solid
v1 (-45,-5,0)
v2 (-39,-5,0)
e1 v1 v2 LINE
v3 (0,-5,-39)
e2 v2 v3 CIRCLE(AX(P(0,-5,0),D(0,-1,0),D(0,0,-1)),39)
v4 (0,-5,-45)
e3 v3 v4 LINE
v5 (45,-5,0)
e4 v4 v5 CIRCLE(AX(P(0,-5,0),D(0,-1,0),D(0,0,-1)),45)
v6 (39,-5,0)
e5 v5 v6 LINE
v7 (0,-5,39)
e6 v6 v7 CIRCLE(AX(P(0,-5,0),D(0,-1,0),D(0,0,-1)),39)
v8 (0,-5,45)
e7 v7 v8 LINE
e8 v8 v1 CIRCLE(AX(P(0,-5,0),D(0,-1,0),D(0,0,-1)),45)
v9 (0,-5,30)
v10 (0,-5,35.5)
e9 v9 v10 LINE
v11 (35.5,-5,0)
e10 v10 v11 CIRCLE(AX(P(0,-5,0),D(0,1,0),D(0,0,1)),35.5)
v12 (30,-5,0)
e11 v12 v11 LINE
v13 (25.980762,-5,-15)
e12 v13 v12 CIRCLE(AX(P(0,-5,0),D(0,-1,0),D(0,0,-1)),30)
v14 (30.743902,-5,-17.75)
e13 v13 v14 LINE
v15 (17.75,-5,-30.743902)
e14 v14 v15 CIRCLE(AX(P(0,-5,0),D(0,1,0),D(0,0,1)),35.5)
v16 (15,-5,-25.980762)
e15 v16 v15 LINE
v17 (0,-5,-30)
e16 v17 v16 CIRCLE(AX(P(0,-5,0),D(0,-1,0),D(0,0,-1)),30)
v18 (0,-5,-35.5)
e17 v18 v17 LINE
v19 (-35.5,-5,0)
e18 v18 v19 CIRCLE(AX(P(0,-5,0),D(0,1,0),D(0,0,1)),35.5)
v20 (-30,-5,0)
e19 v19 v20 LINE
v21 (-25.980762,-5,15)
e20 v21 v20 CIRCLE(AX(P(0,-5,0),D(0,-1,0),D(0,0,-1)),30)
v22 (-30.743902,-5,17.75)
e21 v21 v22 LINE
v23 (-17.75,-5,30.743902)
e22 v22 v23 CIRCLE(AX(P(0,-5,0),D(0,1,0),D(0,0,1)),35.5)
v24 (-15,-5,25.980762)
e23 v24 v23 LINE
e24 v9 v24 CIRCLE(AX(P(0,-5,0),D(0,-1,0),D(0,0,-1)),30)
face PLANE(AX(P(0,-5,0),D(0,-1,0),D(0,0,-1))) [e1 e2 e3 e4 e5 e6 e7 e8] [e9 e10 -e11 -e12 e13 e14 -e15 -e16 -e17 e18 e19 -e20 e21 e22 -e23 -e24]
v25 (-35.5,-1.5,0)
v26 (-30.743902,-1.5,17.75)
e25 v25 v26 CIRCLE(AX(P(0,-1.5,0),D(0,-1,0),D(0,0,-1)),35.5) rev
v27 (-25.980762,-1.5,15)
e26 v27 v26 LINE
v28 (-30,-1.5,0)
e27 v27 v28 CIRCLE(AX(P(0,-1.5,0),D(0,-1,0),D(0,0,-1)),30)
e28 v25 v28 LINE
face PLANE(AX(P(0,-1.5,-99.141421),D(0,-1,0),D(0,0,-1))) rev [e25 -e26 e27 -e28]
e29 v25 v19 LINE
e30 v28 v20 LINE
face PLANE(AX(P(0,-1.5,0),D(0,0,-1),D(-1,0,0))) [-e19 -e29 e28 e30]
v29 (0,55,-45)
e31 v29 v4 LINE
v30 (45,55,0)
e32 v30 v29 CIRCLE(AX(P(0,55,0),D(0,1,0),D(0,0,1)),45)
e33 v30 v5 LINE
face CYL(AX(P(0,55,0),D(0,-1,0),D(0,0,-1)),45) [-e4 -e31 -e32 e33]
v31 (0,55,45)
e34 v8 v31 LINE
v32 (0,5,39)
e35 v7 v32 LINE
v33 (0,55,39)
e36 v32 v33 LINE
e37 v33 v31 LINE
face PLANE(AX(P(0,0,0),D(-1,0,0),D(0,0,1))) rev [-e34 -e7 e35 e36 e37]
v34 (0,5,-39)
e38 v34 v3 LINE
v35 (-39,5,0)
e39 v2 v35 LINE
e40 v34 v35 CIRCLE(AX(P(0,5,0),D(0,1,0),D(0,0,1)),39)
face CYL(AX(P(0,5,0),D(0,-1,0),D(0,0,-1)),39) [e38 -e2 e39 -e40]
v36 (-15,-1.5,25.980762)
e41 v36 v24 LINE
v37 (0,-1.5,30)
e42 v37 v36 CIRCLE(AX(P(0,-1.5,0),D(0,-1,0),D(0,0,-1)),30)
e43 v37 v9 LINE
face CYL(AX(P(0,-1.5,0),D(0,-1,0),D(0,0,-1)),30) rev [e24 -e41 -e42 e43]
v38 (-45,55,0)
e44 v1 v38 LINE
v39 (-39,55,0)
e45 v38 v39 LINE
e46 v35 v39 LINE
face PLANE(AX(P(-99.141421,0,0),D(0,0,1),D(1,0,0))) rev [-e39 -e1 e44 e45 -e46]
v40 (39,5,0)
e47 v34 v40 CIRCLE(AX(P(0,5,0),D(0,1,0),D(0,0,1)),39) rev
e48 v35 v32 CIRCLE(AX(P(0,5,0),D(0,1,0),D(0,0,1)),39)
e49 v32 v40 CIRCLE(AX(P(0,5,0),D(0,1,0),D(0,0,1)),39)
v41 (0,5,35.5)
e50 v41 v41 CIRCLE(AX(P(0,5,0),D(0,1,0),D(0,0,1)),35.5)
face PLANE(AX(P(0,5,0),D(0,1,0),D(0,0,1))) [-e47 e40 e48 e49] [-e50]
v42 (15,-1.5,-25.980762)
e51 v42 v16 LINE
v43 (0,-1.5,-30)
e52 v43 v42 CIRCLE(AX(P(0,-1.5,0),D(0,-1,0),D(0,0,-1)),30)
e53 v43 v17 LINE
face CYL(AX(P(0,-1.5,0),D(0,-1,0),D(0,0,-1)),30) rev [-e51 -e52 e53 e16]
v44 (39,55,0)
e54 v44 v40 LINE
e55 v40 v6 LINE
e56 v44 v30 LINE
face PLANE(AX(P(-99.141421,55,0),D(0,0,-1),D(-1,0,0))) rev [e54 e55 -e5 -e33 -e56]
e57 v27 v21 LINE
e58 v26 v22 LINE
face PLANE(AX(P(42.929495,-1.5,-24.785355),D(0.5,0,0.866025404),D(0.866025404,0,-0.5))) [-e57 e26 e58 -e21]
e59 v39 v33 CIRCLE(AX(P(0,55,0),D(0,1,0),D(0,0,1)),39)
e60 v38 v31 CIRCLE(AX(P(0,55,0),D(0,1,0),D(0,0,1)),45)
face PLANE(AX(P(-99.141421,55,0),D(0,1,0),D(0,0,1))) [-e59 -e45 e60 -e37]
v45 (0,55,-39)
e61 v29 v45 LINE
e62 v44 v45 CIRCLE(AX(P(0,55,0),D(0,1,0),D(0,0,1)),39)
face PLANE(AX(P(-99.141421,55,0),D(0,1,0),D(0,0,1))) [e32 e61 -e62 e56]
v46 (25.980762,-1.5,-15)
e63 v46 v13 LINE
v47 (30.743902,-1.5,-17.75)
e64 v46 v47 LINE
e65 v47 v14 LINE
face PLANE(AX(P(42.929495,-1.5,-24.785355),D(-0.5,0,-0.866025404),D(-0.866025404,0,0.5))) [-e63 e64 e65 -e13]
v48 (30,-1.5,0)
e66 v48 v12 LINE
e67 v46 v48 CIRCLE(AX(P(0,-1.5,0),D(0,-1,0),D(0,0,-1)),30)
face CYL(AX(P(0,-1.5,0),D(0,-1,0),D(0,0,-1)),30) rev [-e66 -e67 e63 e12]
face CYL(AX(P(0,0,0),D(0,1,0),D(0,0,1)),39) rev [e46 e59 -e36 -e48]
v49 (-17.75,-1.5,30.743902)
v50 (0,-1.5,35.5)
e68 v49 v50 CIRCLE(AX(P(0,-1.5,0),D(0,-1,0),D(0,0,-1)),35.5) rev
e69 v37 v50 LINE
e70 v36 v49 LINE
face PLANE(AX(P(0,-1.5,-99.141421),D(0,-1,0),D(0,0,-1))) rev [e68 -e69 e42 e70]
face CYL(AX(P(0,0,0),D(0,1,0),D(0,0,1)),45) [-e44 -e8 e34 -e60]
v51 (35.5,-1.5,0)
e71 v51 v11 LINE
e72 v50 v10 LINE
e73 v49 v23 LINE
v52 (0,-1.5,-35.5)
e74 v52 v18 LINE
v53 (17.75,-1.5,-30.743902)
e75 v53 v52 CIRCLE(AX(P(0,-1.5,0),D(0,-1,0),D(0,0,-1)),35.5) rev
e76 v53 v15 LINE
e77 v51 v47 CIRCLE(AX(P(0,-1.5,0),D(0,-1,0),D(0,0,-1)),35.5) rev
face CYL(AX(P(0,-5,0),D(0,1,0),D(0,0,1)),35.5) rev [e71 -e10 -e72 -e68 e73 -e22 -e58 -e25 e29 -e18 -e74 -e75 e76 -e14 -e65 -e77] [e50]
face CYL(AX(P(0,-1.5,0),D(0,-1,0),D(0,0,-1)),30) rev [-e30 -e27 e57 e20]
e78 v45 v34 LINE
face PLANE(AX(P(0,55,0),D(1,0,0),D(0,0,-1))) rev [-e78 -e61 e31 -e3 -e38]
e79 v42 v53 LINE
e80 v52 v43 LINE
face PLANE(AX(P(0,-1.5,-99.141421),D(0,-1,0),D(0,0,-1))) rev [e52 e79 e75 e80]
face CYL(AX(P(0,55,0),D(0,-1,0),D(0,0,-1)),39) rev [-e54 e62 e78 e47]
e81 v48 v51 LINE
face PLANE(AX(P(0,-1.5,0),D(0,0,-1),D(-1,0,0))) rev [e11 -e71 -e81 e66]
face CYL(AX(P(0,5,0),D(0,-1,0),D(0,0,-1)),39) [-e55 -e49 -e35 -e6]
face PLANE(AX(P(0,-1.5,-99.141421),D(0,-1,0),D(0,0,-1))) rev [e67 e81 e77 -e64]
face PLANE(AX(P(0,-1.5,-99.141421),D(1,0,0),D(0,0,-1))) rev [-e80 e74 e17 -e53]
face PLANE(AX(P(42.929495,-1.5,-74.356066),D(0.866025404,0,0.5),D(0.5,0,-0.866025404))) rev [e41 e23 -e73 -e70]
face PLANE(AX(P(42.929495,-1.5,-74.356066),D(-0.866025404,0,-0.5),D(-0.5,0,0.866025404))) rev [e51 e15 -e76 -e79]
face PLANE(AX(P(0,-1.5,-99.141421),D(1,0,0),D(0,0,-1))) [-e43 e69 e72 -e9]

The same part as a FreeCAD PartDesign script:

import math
import FreeCAD as App
import Part
import Sketcher
Q = App.Units.Quantity

doc = App.newDocument("Part")
body = doc.addObject("PartDesign::Body", "Body")

# Sketch on XZ plane
sketch1 = doc.addObject("Sketcher::SketchObject", "Sketch")
body.addObject(sketch1)
sketch1.AttachmentSupport = (doc.XZ_Plane, [""])
sketch1.MapMode = "FlatFace"
sketch1.addGeometry(Part.Circle(App.Vector(0, 0, 0), App.Vector(0, 0, 1), 39), False)
sketch1.addConstraint([
    Sketcher.Constraint("Coincident", 0, 3, -1, 1),
    Sketcher.Constraint("Diameter", 0, Q("78 mm")),
])
pad1 = doc.addObject("PartDesign::Pad", "Pad")
body.addObject(pad1)
pad1.Profile = sketch1
pad1.Length = 5
pad1.Reversed = True

# Sketch on XZ plane
sketch2 = doc.addObject("Sketcher::SketchObject", "Sketch001")
body.addObject(sketch2)
sketch2.AttachmentSupport = (doc.XZ_Plane, [""])
sketch2.MapMode = "FlatFace"
sketch2.AttachmentOffset = App.Placement(App.Vector(0, 0, -5), App.Rotation())
sketch2.addGeometry([
    Part.LineSegment(App.Vector(-39, 0, 0), App.Vector(-45, 0, 0)),  # 0
    Part.ArcOfCircle(Part.Circle(App.Vector(0, 0, 0), App.Vector(0, 0, 1), 45), math.radians(90), math.radians(180)),  # 1
    Part.LineSegment(App.Vector(0, 45, 0), App.Vector(0, 39, 0)),  # 2
    Part.ArcOfCircle(Part.Circle(App.Vector(0, 0, 0), App.Vector(0, 0, 1), 39), math.radians(90), math.radians(180)),  # 3
    Part.LineSegment(App.Vector(0, -45, 0), App.Vector(0, -39, 0)),  # 4
    Part.ArcOfCircle(Part.Circle(App.Vector(0, 0, 0), App.Vector(0, 0, 1), 39), math.radians(-90), math.radians(0)),  # 5
    Part.LineSegment(App.Vector(39, 0, 0), App.Vector(45, 0, 0)),  # 6
    Part.ArcOfCircle(Part.Circle(App.Vector(0, 0, 0), App.Vector(0, 0, 1), 45), math.radians(-90), math.radians(0)),  # 7
], False)
sketch2.addConstraint([
    Sketcher.Constraint("Coincident", 0, 2, 1, 2),
    Sketcher.Constraint("Coincident", 1, 1, 2, 1),
    Sketcher.Constraint("Coincident", 2, 2, 3, 1),
    Sketcher.Constraint("Coincident", 3, 2, 0, 1),
    Sketcher.Constraint("Coincident", 4, 2, 5, 1),
    Sketcher.Constraint("Coincident", 5, 2, 6, 1),
    Sketcher.Constraint("Coincident", 6, 2, 7, 2),
    Sketcher.Constraint("Coincident", 7, 1, 4, 1),
    Sketcher.Constraint("Horizontal", 0),
    Sketcher.Constraint("Vertical", 2),
    Sketcher.Constraint("Vertical", 4),
    Sketcher.Constraint("Horizontal", 6),
    Sketcher.Constraint("Coincident", 1, 3, -1, 1),
    Sketcher.Constraint("Coincident", 3, 3, -1, 1),
    Sketcher.Constraint("Coincident", 5, 3, -1, 1),
    Sketcher.Constraint("Coincident", 7, 3, -1, 1),
    Sketcher.Constraint("Equal", 3, 5),
    Sketcher.Constraint("Equal", 1, 7),
    Sketcher.Constraint("PointOnObject", 0, 2, -1),
    Sketcher.Constraint("PointOnObject", 1, 1, -2),
    Sketcher.Constraint("PointOnObject", 4, 2, -2),
    Sketcher.Constraint("PointOnObject", 5, 2, -1),
    Sketcher.Constraint("Radius", 1, Q("45 mm")),
    Sketcher.Constraint("Radius", 3, Q("39 mm")),
])
pad2 = doc.addObject("PartDesign::Pad", "Pad001")
body.addObject(pad2)
pad2.Profile = sketch2
pad2.Type = "TwoLengths"
pad2.Length = 50
pad2.Length2 = 5
pad2.Reversed = True

# Sketch on XZ plane
sketch3 = doc.addObject("Sketcher::SketchObject", "Sketch002")
body.addObject(sketch3)
sketch3.AttachmentSupport = (doc.XZ_Plane, [""])
sketch3.MapMode = "FlatFace"
sketch3.AttachmentOffset = App.Placement(App.Vector(0, 0, 5), App.Rotation())
sketch3.addGeometry([
    Part.LineSegment(App.Vector(0, 39, 0), App.Vector(0, 45, 0)),  # 0
    Part.ArcOfCircle(Part.Circle(App.Vector(0, 0, 0), App.Vector(0, 0, 1), 45), math.radians(90), math.radians(180)),  # 1
    Part.LineSegment(App.Vector(-45, 0, 0), App.Vector(-39, 0, 0)),  # 2
    Part.ArcOfCircle(Part.Circle(App.Vector(0, 0, 0), App.Vector(0, 0, 1), 39), math.radians(-180), math.radians(-90)),  # 3
    Part.LineSegment(App.Vector(0, -39, 0), App.Vector(0, -45, 0)),  # 4
    Part.ArcOfCircle(Part.Circle(App.Vector(0, 0, 0), App.Vector(0, 0, 1), 45), math.radians(-90), math.radians(0)),  # 5
    Part.LineSegment(App.Vector(45, 0, 0), App.Vector(39, 0, 0)),  # 6
    Part.ArcOfCircle(Part.Circle(App.Vector(0, 0, 0), App.Vector(0, 0, 1), 39), math.radians(0), math.radians(90)),  # 7
], False)
sketch3.addConstraint([
    Sketcher.Constraint("Coincident", 0, 2, 1, 1),
    Sketcher.Constraint("Coincident", 1, 2, 2, 1),
    Sketcher.Constraint("Coincident", 2, 2, 3, 1),
    Sketcher.Constraint("Coincident", 3, 2, 4, 1),
    Sketcher.Constraint("Coincident", 4, 2, 5, 1),
    Sketcher.Constraint("Coincident", 5, 2, 6, 1),
    Sketcher.Constraint("Coincident", 6, 2, 7, 1),
    Sketcher.Constraint("Coincident", 7, 2, 0, 1),
    Sketcher.Constraint("Vertical", 0),
    Sketcher.Constraint("Horizontal", 2),
    Sketcher.Constraint("Vertical", 4),
    Sketcher.Constraint("Horizontal", 6),
    Sketcher.Constraint("Coincident", 1, 3, -1, 1),
    Sketcher.Constraint("Coincident", 3, 3, -1, 1),
    Sketcher.Constraint("Coincident", 5, 3, -1, 1),
    Sketcher.Constraint("Coincident", 7, 3, -1, 1),
    Sketcher.Constraint("Equal", 1, 5),
    Sketcher.Constraint("Equal", 3, 7),
    Sketcher.Constraint("PointOnObject", 0, 2, -2),
    Sketcher.Constraint("PointOnObject", 1, 2, -1),
    Sketcher.Constraint("PointOnObject", 3, 2, -2),
    Sketcher.Constraint("PointOnObject", 5, 2, -1),
    Sketcher.Constraint("Radius", 1, Q("45 mm")),
    Sketcher.Constraint("Radius", 3, Q("39 mm")),
])
pad3 = doc.addObject("PartDesign::Pad", "Pad002")
body.addObject(pad3)
pad3.Profile = sketch3
pad3.Length = 5
pad3.Reversed = True

# Sketch on XZ plane
sketch4 = doc.addObject("Sketcher::SketchObject", "Sketch003")
body.addObject(sketch4)
sketch4.AttachmentSupport = (doc.XZ_Plane, [""])
sketch4.MapMode = "FlatFace"
sketch4.AttachmentOffset = App.Placement(App.Vector(0, 0, -5), App.Rotation())
sketch4.addGeometry(Part.Circle(App.Vector(0, 0, 0), App.Vector(0, 0, 1), 36), False)
sketch4.addConstraint([
    Sketcher.Constraint("Coincident", 0, 3, -1, 1),
    Sketcher.Constraint("Diameter", 0, Q("71 mm")),
])
pocket1 = doc.addObject("PartDesign::Pocket", "Pocket")
body.addObject(pocket1)
pocket1.Profile = sketch4
pocket1.Length = 10
pocket1.Reversed = True

# Sketch on XZ plane
sketch5 = doc.addObject("Sketcher::SketchObject", "Sketch004")
body.addObject(sketch5)
sketch5.AttachmentSupport = (doc.XZ_Plane, [""])
sketch5.MapMode = "FlatFace"
sketch5.AttachmentOffset = App.Placement(App.Vector(0, 0, 1.5), App.Rotation())
sketch5.addGeometry([
    Part.ArcOfCircle(Part.Circle(App.Vector(0, 0, 0), App.Vector(0, 0, 1), 36), math.radians(90), math.radians(120)),  # 0
    Part.LineSegment(App.Vector(-18, 31, 0), App.Vector(-15, 26, 0)),  # 1
    Part.ArcOfCircle(Part.Circle(App.Vector(0, 0, 0), App.Vector(0, 0, 1), 30), math.radians(90), math.radians(120)),  # 2
    Part.LineSegment(App.Vector(0, 30, 0), App.Vector(0, 36, 0)),  # 3
    Part.ArcOfCircle(Part.Circle(App.Vector(0, 0, 0), App.Vector(0, 0, 1), 36), math.radians(150), math.radians(180)),  # 4
    Part.LineSegment(App.Vector(-36, 0, 0), App.Vector(-30, 0, 0)),  # 5
    Part.ArcOfCircle(Part.Circle(App.Vector(0, 0, 0), App.Vector(0, 0, 1), 30), math.radians(150), math.radians(180)),  # 6
    Part.LineSegment(App.Vector(-26, 15, 0), App.Vector(-31, 18, 0)),  # 7
    Part.LineSegment(App.Vector(0, -30, 0), App.Vector(0, -36, 0)),  # 8
    Part.ArcOfCircle(Part.Circle(App.Vector(0, 0, 0), App.Vector(0, 0, 1), 36), math.radians(-90), math.radians(-60)),  # 9
    Part.LineSegment(App.Vector(18, -31, 0), App.Vector(15, -26, 0)),  # 10
    Part.ArcOfCircle(Part.Circle(App.Vector(0, 0, 0), App.Vector(0, 0, 1), 30), math.radians(-90), math.radians(-60)),  # 11
    Part.LineSegment(App.Vector(26, -15, 0), App.Vector(31, -18, 0)),  # 12
    Part.ArcOfCircle(Part.Circle(App.Vector(0, 0, 0), App.Vector(0, 0, 1), 36), math.radians(-30), math.radians(0)),  # 13
    Part.LineSegment(App.Vector(36, 0, 0), App.Vector(30, 0, 0)),  # 14
    Part.ArcOfCircle(Part.Circle(App.Vector(0, 0, 0), App.Vector(0, 0, 1), 30), math.radians(-30), math.radians(0)),  # 15
], False)
sketch5.addConstraint([
    Sketcher.Constraint("Coincident", 0, 2, 1, 1),
    Sketcher.Constraint("Coincident", 1, 2, 2, 2),
    Sketcher.Constraint("Coincident", 2, 1, 3, 1),
    Sketcher.Constraint("Coincident", 3, 2, 0, 1),
    Sketcher.Constraint("Coincident", 4, 2, 5, 1),
    Sketcher.Constraint("Coincident", 5, 2, 6, 2),
    Sketcher.Constraint("Coincident", 6, 1, 7, 1),
    Sketcher.Constraint("Coincident", 7, 2, 4, 1),
    Sketcher.Constraint("Coincident", 8, 2, 9, 1),
    Sketcher.Constraint("Coincident", 9, 2, 10, 1),
    Sketcher.Constraint("Coincident", 10, 2, 11, 2),
    Sketcher.Constraint("Coincident", 11, 1, 8, 1),
    Sketcher.Constraint("Coincident", 12, 2, 13, 1),
    Sketcher.Constraint("Coincident", 13, 2, 14, 1),
    Sketcher.Constraint("Coincident", 14, 2, 15, 2),
    Sketcher.Constraint("Coincident", 15, 1, 12, 1),
    Sketcher.Constraint("Vertical", 3),
    Sketcher.Constraint("Horizontal", 5),
    Sketcher.Constraint("Vertical", 8),
    Sketcher.Constraint("Horizontal", 14),
    Sketcher.Constraint("Coincident", 0, 3, -1, 1),
    Sketcher.Constraint("Coincident", 2, 3, -1, 1),
    Sketcher.Constraint("Coincident", 4, 3, -1, 1),
    Sketcher.Constraint("Coincident", 6, 3, -1, 1),
    Sketcher.Constraint("Coincident", 9, 3, -1, 1),
    Sketcher.Constraint("Coincident", 11, 3, -1, 1),
    Sketcher.Constraint("Coincident", 13, 3, -1, 1),
    Sketcher.Constraint("Coincident", 15, 3, -1, 1),
    Sketcher.Constraint("Equal", 0, 4),
    Sketcher.Constraint("Equal", 2, 6),
    Sketcher.Constraint("Equal", 4, 9),
    Sketcher.Constraint("Equal", 6, 11),
    Sketcher.Constraint("Equal", 9, 13),
    Sketcher.Constraint("Equal", 11, 15),
    Sketcher.Constraint("PointOnObject", 2, 1, -2),
    Sketcher.Constraint("PointOnObject", 4, 2, -1),
    Sketcher.Constraint("PointOnObject", 8, 2, -2),
    Sketcher.Constraint("PointOnObject", 13, 2, -1),
    Sketcher.Constraint("Parallel", 1, 10),
    Sketcher.Constraint("Parallel", 7, 12),
    Sketcher.Constraint("Radius", 2, Q("30 mm")),
    Sketcher.Constraint("Radius", 0, Q("35.5 mm")),
    Sketcher.Constraint("Angle", 1, Q("-60 deg")),
    Sketcher.Constraint("Angle", 7, Q("150 deg")),
    Sketcher.Constraint("DistanceX", 1, 2, -1, 1, Q("15 mm")),
    Sketcher.Constraint("DistanceY", -1, 1, 6, 1, Q("15 mm")),
    Sketcher.Constraint("DistanceX", -1, 1, 10, 2, Q("15 mm")),
    Sketcher.Constraint("DistanceY", 15, 1, -1, 1, Q("15 mm")),
])
pad4 = doc.addObject("PartDesign::Pad", "Pad003")
body.addObject(pad4)
pad4.Profile = sketch5
pad4.Length = 3.5

doc.recompute()
